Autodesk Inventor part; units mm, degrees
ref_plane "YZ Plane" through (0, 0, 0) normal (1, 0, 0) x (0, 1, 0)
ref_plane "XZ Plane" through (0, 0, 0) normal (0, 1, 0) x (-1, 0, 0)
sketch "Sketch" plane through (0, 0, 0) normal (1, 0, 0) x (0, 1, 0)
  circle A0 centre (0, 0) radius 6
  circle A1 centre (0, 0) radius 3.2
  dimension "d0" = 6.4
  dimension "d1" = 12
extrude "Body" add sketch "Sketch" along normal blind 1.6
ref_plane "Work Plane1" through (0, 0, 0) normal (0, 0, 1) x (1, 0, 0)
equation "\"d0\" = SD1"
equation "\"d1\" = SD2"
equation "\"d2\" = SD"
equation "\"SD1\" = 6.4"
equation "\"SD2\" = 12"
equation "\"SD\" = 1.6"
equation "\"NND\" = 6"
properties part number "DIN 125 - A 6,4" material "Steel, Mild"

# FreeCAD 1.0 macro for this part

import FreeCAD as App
import Part
import Sketcher
Q = App.Units.Quantity

doc = App.newDocument("Part")
params = doc.addObject("Spreadsheet::Sheet", "Params")
for row, (alias, value) in enumerate([
    ("sketch1_diameter", "12 mm"),
    ("sketch1_diameter2", "6.4 mm"),
    ("pad1_length", "1.6 mm"),
], start=1):
    params.set(f"A{row}", alias)
    params.set(f"B{row}", "=" + value)
    params.setAlias(f"B{row}", alias)

body = doc.addObject("PartDesign::Body", "Body")

# Sketch on YZ plane
sketch1 = body.newObject("Sketcher::SketchObject", "Sketch")
sketch1.AttachmentSupport = (doc.getObject("YZ_Plane"), [""])
sketch1.MapMode = "FlatFace"
sketch1.addGeometry(Part.Circle(App.Vector(0, 0, 0), App.Vector(0, 0, 1), 6), False)
sketch1.addGeometry(Part.Circle(App.Vector(0, 0, 0), App.Vector(0, 0, 1), 3.2), False)
sketch1.addConstraint(Sketcher.Constraint("Coincident", 0, 3, -1, 1))
sketch1.addConstraint(Sketcher.Constraint("Coincident", 1, 3, -1, 1))
sketch1.addConstraint(Sketcher.Constraint("Diameter", 0, Q("12 mm")))
sketch1.addConstraint(Sketcher.Constraint("Diameter", 1, Q("6.4 mm")))
sketch1.setExpression("Constraints[2]", "Params.sketch1_diameter")
sketch1.setExpression("Constraints[3]", "Params.sketch1_diameter2")
pad1 = body.newObject("PartDesign::Pad", "Pad")
pad1.Profile = sketch1
pad1.setExpression("Length", "Params.pad1_length")

doc.recompute()
